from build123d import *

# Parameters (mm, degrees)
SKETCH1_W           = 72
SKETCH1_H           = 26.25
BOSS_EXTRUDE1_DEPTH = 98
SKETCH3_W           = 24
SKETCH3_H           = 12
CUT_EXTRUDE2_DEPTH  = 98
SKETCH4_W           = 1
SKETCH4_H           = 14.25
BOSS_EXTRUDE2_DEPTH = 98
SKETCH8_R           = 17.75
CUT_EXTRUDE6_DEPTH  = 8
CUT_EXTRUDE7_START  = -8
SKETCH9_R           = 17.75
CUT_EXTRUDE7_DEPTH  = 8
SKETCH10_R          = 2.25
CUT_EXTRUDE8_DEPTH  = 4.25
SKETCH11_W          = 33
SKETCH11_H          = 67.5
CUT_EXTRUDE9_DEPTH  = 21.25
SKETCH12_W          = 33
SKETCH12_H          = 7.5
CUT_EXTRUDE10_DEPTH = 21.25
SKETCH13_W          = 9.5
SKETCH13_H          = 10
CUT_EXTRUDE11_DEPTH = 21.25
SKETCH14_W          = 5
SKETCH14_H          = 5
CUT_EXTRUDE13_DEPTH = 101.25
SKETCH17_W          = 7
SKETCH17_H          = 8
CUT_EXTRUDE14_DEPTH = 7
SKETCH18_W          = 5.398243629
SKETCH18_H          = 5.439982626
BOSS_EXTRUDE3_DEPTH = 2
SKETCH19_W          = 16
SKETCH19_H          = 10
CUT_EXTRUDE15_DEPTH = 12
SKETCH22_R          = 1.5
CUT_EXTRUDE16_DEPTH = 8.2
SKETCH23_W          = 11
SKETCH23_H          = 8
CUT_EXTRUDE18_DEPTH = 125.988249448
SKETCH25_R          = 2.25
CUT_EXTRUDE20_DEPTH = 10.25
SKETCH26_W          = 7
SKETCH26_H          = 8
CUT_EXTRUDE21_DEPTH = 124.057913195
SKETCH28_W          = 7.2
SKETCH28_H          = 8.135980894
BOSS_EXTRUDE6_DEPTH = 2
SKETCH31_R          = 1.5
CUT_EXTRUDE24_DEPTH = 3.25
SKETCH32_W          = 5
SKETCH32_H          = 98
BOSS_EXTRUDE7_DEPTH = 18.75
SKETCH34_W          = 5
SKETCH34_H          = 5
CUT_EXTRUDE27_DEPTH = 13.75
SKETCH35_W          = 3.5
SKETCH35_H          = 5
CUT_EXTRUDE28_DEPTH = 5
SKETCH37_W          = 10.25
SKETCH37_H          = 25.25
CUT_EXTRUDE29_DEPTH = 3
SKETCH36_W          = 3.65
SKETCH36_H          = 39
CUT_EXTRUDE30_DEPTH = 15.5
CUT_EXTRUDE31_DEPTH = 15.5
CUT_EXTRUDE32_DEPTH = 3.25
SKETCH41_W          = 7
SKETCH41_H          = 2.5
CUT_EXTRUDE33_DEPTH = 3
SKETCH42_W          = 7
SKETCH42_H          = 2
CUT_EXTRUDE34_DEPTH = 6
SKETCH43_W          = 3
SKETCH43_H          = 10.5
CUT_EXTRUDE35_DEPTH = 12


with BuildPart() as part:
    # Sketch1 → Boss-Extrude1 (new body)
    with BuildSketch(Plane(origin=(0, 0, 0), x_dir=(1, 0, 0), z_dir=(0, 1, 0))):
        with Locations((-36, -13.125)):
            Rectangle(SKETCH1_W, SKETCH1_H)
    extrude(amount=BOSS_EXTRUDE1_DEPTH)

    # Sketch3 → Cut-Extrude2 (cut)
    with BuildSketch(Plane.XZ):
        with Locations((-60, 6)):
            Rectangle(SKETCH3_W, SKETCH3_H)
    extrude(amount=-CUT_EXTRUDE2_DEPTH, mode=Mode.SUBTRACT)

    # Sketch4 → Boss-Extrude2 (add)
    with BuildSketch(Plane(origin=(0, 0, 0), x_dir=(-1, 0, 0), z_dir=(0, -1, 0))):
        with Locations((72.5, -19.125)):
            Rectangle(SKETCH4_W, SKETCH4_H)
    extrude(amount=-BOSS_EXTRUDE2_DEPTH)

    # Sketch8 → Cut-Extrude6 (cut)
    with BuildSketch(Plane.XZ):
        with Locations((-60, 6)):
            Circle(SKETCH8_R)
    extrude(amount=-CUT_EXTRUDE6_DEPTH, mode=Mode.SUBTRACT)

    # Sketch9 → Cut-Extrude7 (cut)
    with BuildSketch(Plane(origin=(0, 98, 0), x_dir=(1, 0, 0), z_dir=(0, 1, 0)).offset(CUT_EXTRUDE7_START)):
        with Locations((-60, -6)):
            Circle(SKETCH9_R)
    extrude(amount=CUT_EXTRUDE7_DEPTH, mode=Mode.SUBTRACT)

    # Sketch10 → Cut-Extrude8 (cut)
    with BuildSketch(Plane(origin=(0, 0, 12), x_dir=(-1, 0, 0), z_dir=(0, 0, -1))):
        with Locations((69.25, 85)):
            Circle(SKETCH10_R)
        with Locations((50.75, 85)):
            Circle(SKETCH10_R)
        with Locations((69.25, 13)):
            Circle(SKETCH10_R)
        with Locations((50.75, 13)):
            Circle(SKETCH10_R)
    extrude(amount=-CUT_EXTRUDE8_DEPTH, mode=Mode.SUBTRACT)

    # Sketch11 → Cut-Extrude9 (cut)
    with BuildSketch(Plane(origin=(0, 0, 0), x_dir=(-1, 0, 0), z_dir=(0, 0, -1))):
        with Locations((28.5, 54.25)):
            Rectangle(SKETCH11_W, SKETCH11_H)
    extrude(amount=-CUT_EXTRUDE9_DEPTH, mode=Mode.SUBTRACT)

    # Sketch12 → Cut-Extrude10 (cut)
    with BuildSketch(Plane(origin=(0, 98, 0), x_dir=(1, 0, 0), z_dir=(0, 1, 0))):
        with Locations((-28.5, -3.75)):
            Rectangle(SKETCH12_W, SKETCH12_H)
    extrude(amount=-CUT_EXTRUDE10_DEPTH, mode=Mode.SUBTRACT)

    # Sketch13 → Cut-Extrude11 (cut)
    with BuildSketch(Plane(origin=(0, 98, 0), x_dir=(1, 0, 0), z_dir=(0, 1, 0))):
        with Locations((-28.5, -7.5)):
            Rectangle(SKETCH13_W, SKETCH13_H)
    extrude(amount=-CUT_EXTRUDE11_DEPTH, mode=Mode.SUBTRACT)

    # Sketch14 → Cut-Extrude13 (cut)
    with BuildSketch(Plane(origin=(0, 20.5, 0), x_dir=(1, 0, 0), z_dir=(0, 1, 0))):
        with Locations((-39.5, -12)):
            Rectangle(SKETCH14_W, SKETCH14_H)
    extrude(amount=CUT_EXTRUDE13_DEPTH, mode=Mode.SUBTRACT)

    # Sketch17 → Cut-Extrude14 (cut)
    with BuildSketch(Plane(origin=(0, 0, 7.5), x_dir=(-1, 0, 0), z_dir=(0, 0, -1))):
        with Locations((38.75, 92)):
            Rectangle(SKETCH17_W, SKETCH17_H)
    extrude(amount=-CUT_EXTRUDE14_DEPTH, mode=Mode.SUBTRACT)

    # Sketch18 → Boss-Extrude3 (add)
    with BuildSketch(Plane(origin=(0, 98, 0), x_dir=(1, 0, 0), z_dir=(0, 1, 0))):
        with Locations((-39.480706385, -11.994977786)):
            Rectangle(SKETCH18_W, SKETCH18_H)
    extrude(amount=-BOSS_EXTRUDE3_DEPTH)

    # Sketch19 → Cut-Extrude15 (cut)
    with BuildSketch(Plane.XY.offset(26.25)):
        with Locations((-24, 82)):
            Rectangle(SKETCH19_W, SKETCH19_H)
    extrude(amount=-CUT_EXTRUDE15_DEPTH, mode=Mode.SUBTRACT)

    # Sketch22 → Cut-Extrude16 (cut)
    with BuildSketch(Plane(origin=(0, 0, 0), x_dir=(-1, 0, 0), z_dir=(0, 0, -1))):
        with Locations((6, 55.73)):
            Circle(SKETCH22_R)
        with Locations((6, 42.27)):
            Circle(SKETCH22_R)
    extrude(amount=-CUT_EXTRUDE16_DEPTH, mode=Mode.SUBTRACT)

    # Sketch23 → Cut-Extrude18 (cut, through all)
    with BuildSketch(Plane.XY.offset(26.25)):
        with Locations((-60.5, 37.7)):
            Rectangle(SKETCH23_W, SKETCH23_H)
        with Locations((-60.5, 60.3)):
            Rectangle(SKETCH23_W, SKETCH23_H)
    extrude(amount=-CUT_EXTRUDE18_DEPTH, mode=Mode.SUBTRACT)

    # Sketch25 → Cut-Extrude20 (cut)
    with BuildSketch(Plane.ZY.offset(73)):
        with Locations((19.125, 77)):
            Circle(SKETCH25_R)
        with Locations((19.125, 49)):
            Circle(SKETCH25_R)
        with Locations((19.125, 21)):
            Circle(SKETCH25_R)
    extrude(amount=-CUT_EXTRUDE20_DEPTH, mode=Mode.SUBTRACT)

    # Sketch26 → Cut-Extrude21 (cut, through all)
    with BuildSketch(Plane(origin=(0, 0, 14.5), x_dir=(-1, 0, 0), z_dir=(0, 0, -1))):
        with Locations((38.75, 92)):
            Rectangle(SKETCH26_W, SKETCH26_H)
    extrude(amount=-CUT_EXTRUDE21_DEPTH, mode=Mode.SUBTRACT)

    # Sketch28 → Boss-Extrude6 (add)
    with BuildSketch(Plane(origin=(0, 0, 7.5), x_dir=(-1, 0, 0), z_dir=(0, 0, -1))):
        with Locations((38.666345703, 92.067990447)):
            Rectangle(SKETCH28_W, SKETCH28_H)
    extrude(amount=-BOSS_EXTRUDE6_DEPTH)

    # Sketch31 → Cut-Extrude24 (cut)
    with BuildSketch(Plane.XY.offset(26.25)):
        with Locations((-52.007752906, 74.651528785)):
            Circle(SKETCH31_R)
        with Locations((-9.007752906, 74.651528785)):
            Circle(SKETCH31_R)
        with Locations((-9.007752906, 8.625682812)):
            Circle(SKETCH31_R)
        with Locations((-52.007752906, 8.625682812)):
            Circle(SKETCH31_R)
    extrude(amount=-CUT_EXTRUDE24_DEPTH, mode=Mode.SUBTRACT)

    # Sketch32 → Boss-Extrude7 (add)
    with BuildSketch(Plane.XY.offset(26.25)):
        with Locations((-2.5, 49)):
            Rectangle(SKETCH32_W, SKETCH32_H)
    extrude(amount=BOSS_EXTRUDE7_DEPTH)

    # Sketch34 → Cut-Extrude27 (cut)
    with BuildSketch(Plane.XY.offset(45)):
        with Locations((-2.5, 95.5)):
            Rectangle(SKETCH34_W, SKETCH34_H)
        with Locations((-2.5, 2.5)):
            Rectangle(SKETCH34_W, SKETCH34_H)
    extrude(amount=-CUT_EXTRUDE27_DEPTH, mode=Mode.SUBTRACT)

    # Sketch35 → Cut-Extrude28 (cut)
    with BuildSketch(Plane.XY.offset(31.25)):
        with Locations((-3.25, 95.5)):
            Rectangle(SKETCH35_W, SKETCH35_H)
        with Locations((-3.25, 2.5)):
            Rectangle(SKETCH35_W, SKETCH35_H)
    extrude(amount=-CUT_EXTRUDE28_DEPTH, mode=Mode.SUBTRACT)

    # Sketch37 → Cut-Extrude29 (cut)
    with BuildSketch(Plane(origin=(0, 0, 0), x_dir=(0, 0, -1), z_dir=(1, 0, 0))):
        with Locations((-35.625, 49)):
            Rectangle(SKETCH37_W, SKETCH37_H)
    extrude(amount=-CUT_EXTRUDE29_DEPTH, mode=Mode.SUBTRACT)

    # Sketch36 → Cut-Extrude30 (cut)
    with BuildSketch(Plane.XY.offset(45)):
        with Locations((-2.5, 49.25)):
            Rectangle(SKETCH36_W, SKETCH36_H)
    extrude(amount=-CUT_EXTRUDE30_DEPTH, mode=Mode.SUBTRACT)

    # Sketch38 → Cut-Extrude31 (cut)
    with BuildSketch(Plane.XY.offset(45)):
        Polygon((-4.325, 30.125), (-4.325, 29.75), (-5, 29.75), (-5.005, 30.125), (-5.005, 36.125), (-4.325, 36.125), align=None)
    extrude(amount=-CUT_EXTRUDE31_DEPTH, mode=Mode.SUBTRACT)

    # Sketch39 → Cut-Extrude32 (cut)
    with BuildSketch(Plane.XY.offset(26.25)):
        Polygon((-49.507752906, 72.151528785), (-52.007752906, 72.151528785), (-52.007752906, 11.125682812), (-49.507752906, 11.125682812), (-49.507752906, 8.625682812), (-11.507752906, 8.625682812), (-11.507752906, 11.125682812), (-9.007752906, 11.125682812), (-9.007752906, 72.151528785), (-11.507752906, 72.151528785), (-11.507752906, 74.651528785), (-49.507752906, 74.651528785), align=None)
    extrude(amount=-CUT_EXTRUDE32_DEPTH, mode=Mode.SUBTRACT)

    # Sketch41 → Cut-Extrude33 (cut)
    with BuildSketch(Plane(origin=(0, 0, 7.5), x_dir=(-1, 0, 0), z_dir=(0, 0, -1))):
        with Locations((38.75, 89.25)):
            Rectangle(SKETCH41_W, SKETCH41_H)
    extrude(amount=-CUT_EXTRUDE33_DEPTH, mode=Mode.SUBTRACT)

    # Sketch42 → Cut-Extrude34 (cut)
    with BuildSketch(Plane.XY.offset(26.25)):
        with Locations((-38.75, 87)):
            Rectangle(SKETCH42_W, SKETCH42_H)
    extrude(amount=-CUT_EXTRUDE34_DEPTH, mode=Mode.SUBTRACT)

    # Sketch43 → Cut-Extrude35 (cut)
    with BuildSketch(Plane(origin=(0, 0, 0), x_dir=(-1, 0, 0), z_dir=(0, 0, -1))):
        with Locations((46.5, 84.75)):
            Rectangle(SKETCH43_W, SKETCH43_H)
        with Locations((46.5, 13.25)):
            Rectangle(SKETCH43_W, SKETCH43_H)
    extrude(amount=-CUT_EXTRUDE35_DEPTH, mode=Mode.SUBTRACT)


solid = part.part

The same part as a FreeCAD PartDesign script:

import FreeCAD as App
import Part
import Sketcher

V = App.Vector
Q = App.Units.Quantity


def add_polygon(sketch, points):
    """Adds a closed chain of lines whose ends are joined by coincident constraints."""
    first, n = sketch.GeometryCount, len(points)
    for a, b in zip(points, points[1:] + points[:1]):
        sketch.addGeometry(Part.LineSegment(App.Vector(*a, 0), App.Vector(*b, 0)), False)
    for i in range(n):
        sketch.addConstraint(Sketcher.Constraint("Coincident", first + i, 2, first + (i + 1) % n, 1))

doc = App.newDocument("Part")
body = doc.addObject("PartDesign::Body", "Body")

# Sketch on XZ plane
sketch1 = body.newObject("Sketcher::SketchObject", "Sketch")
sketch1.AttachmentSupport = (doc.getObject("XZ_Plane"), [""])
sketch1.MapMode = "FlatFace"
add_polygon(sketch1, [(-72, 0), (-72, 26.25), (0, 26.25), (0, 0)])  # lines 0-3
sketch1.addConstraint(Sketcher.Constraint("Vertical", 0))
sketch1.addConstraint(Sketcher.Constraint("Horizontal", 1))
sketch1.addConstraint(Sketcher.Constraint("Vertical", 2))
sketch1.addConstraint(Sketcher.Constraint("Horizontal", 3))
sketch1.addConstraint(Sketcher.Constraint("Coincident", 2, 2, -1, 1))
sketch1.addConstraint(Sketcher.Constraint("DistanceX", 1, 1, 1, 2, Q("72 mm")))
sketch1.addConstraint(Sketcher.Constraint("DistanceY", 0, 1, 0, 2, Q("26.25 mm")))
pad1 = body.newObject("PartDesign::Pad", "Pad")
pad1.Profile = sketch1
pad1.Length = 98
pad1.Reversed = True

# Sketch on XZ plane
sketch2 = body.newObject("Sketcher::SketchObject", "Sketch001")
sketch2.AttachmentSupport = (doc.getObject("XZ_Plane"), [""])
sketch2.MapMode = "FlatFace"
add_polygon(sketch2, [(-72, 12), (-72, 0), (-48, 0), (-48, 12)])  # lines 0-3
sketch2.addConstraint(Sketcher.Constraint("Vertical", 0))
sketch2.addConstraint(Sketcher.Constraint("Horizontal", 1))
sketch2.addConstraint(Sketcher.Constraint("Vertical", 2))
sketch2.addConstraint(Sketcher.Constraint("Horizontal", 3))
sketch2.addConstraint(Sketcher.Constraint("PointOnObject", 0, 2, -1))
sketch2.addConstraint(Sketcher.Constraint("DistanceX", 1, 1, 1, 2, Q("24 mm")))
sketch2.addConstraint(Sketcher.Constraint("DistanceY", 0, 2, 0, 1, Q("12 mm")))
sketch2.addConstraint(Sketcher.Constraint("DistanceX", 0, 2, -1, 1, Q("72 mm")))
pocket1 = body.newObject("PartDesign::Pocket", "Pocket")
pocket1.Profile = sketch2
pocket1.Length = 98

# Sketch on XZ plane
sketch3 = body.newObject("Sketcher::SketchObject", "Sketch002")
sketch3.AttachmentSupport = (doc.getObject("XZ_Plane"), [""])
sketch3.MapMode = "FlatFace"
add_polygon(sketch3, [(-72, 12), (-72, 26.25), (-73, 26.25), (-73, 12)])  # lines 0-3
sketch3.addConstraint(Sketcher.Constraint("Vertical", 0))
sketch3.addConstraint(Sketcher.Constraint("Horizontal", 1))
sketch3.addConstraint(Sketcher.Constraint("Vertical", 2))
sketch3.addConstraint(Sketcher.Constraint("Horizontal", 3))
sketch3.addConstraint(Sketcher.Constraint("DistanceX", 1, 2, 1, 1, Q("1 mm")))
sketch3.addConstraint(Sketcher.Constraint("DistanceX", 0, 2, -1, 1, Q("72 mm")))
sketch3.addConstraint(Sketcher.Constraint("DistanceY", -1, 1, 2, 2, Q("12 mm")))
sketch3.addConstraint(Sketcher.Constraint("DistanceY", 0, 1, 0, 2, Q("14.25 mm")))
pad2 = body.newObject("PartDesign::Pad", "Pad001")
pad2.Profile = sketch3
pad2.Length = 98
pad2.Reversed = True

# Sketch on XZ plane
sketch4 = body.newObject("Sketcher::SketchObject", "Sketch003")
sketch4.AttachmentSupport = (doc.getObject("XZ_Plane"), [""])
sketch4.MapMode = "FlatFace"
sketch4.addGeometry(Part.Circle(V(-60, 6, 0), V(0, 0, 1), 17.75), False)
sketch4.addConstraint(Sketcher.Constraint("Diameter", 0, Q("35.5 mm")))
sketch4.addConstraint(Sketcher.Constraint("DistanceX", 0, 3, -1, 1, Q("60 mm")))
sketch4.addConstraint(Sketcher.Constraint("DistanceY", -1, 1, 0, 3, Q("6 mm")))
pocket2 = body.newObject("PartDesign::Pocket", "Pocket001")
pocket2.Profile = sketch4
pocket2.Length = 8

# Sketch on XZ plane
sketch5 = body.newObject("Sketcher::SketchObject", "Sketch004")
sketch5.AttachmentSupport = (doc.getObject("XZ_Plane"), [""])
sketch5.MapMode = "FlatFace"
sketch5.AttachmentOffset = App.Placement(V(0, 0, -90), App.Rotation())
sketch5.addGeometry(Part.Circle(V(-60, 6, 0), V(0, 0, 1), 17.75), False)
sketch5.addConstraint(Sketcher.Constraint("Diameter", 0, Q("35.5 mm")))
sketch5.addConstraint(Sketcher.Constraint("DistanceX", 0, 3, -1, 1, Q("60 mm")))
sketch5.addConstraint(Sketcher.Constraint("DistanceY", -1, 1, 0, 3, Q("6 mm")))
pocket3 = body.newObject("PartDesign::Pocket", "Pocket002")
pocket3.Profile = sketch5
pocket3.Length = 8

# Sketch on XY plane
sketch6 = body.newObject("Sketcher::SketchObject", "Sketch005")
sketch6.AttachmentSupport = (doc.getObject("XY_Plane"), [""])
sketch6.MapMode = "FlatFace"
sketch6.AttachmentOffset = App.Placement(V(0, 0, 12), App.Rotation())
sketch6.addGeometry(Part.Circle(V(-69.25, 85, 0), V(0, 0, 1), 2.25), False)
sketch6.addGeometry(Part.Circle(V(-50.75, 85, 0), V(0, 0, 1), 2.25), False)
sketch6.addGeometry(Part.Circle(V(-69.25, 13, 0), V(0, 0, 1), 2.25), False)
sketch6.addGeometry(Part.Circle(V(-50.75, 13, 0), V(0, 0, 1), 2.25), False)
sketch6.addConstraint(Sketcher.Constraint("Equal", 0, 1))
sketch6.addConstraint(Sketcher.Constraint("Equal", 1, 2))
sketch6.addConstraint(Sketcher.Constraint("Equal", 2, 3))
sketch6.addConstraint(Sketcher.Constraint("Horizontal", 0, 3, 1, 3))
sketch6.addConstraint(Sketcher.Constraint("Horizontal", 2, 3, 3, 3))
sketch6.addConstraint(Sketcher.Constraint("Vertical", 0, 3, 2, 3))
sketch6.addConstraint(Sketcher.Constraint("Vertical", 1, 3, 3, 3))
sketch6.addConstraint(Sketcher.Constraint("Diameter", 0, Q("4.5 mm")))
sketch6.addConstraint(Sketcher.Constraint("DistanceY", -1, 1, 0, 3, Q("85 mm")))
sketch6.addConstraint(Sketcher.Constraint("DistanceY", -1, 1, 2, 3, Q("13 mm")))
sketch6.addConstraint(Sketcher.Constraint("DistanceX", 0, 3, 1, 3, Q("18.5 mm")))
sketch6.addConstraint(Sketcher.Constraint("DistanceX", 0, 3, -1, 1, Q("69.25 mm")))
pocket4 = body.newObject("PartDesign::Pocket", "Pocket003")
pocket4.Profile = sketch6
pocket4.Length = 4.25
pocket4.Reversed = True

# Sketch on XY plane
sketch7 = body.newObject("Sketcher::SketchObject", "Sketch006")
sketch7.AttachmentSupport = (doc.getObject("XY_Plane"), [""])
sketch7.MapMode = "FlatFace"
add_polygon(sketch7, [(-12, 88), (-12, 20.5), (-45, 20.5), (-45, 88)])  # lines 0-3
sketch7.addConstraint(Sketcher.Constraint("Vertical", 0))
sketch7.addConstraint(Sketcher.Constraint("Horizontal", 1))
sketch7.addConstraint(Sketcher.Constraint("Vertical", 2))
sketch7.addConstraint(Sketcher.Constraint("Horizontal", 3))
sketch7.addConstraint(Sketcher.Constraint("DistanceX", 1, 2, 1, 1, Q("33 mm")))
sketch7.addConstraint(Sketcher.Constraint("DistanceY", 0, 2, 0, 1, Q("67.5 mm")))
sketch7.addConstraint(Sketcher.Constraint("DistanceX", 0, 2, -1, 1, Q("12 mm")))
sketch7.addConstraint(Sketcher.Constraint("DistanceY", -1, 1, 2, 2, Q("88 mm")))
pocket5 = body.newObject("PartDesign::Pocket", "Pocket004")
pocket5.Profile = sketch7
pocket5.Length = 21.25
pocket5.Reversed = True

# Sketch on XZ plane
sketch8 = body.newObject("Sketcher::SketchObject", "Sketch007")
sketch8.AttachmentSupport = (doc.getObject("XZ_Plane"), [""])
sketch8.MapMode = "FlatFace"
sketch8.AttachmentOffset = App.Placement(V(0, 0, -98), App.Rotation())
add_polygon(sketch8, [(-45, 0), (-45, 7.5), (-12, 7.5), (-12, 0)])  # lines 0-3
sketch8.addConstraint(Sketcher.Constraint("Vertical", 0))
sketch8.addConstraint(Sketcher.Constraint("Horizontal", 1))
sketch8.addConstraint(Sketcher.Constraint("Vertical", 2))
sketch8.addConstraint(Sketcher.Constraint("Horizontal", 3))
sketch8.addConstraint(Sketcher.Constraint("PointOnObject", 2, 2, -1))
sketch8.addConstraint(Sketcher.Constraint("DistanceX", 1, 1, 1, 2, Q("33 mm")))
sketch8.addConstraint(Sketcher.Constraint("DistanceY", 0, 1, 0, 2, Q("7.5 mm")))
sketch8.addConstraint(Sketcher.Constraint("DistanceX", 0, 2, -1, 1, Q("45 mm")))
pocket6 = body.newObject("PartDesign::Pocket", "Pocket005")
pocket6.Profile = sketch8
pocket6.Length = 21.25
pocket6.Reversed = True

# Sketch on XZ plane
sketch9 = body.newObject("Sketcher::SketchObject", "Sketch008")
sketch9.AttachmentSupport = (doc.getObject("XZ_Plane"), [""])
sketch9.MapMode = "FlatFace"
sketch9.AttachmentOffset = App.Placement(V(0, 0, -98), App.Rotation())
add_polygon(sketch9, [(-33.25, 2.5), (-33.25, 12.5), (-23.75, 12.5), (-23.75, 2.5)])  # lines 0-3
sketch9.addConstraint(Sketcher.Constraint("Vertical", 0))
sketch9.addConstraint(Sketcher.Constraint("Horizontal", 1))
sketch9.addConstraint(Sketcher.Constraint("Vertical", 2))
sketch9.addConstraint(Sketcher.Constraint("Horizontal", 3))
sketch9.addConstraint(Sketcher.Constraint("DistanceY", 0, 1, 0, 2, Q("10 mm")))
sketch9.addConstraint(Sketcher.Constraint("DistanceX", 1, 1, 1, 2, Q("9.5 mm")))
sketch9.addConstraint(Sketcher.Constraint("DistanceY", -1, 1, 0, 2, Q("12.5 mm")))
sketch9.addConstraint(Sketcher.Constraint("DistanceX", 0, 2, -1, 1, Q("33.25 mm")))
pocket7 = body.newObject("PartDesign::Pocket", "Pocket006")
pocket7.Profile = sketch9
pocket7.Length = 21.25
pocket7.Reversed = True

# Sketch on XZ plane
sketch10 = body.newObject("Sketcher::SketchObject", "Sketch009")
sketch10.AttachmentSupport = (doc.getObject("XZ_Plane"), [""])
sketch10.MapMode = "FlatFace"
sketch10.AttachmentOffset = App.Placement(V(0, 0, -20.5), App.Rotation())
add_polygon(sketch10, [(-42, 9.5), (-42, 14.5), (-37, 14.5), (-37, 9.5)])  # lines 0-3
sketch10.addConstraint(Sketcher.Constraint("Vertical", 0))
sketch10.addConstraint(Sketcher.Constraint("Horizontal", 1))
sketch10.addConstraint(Sketcher.Constraint("Vertical", 2))
sketch10.addConstraint(Sketcher.Constraint("Horizontal", 3))
sketch10.addConstraint(Sketcher.Constraint("Equal", 3, 0))
sketch10.addConstraint(Sketcher.Constraint("DistanceX", 1, 1, 1, 2, Q("5 mm")))
sketch10.addConstraint(Sketcher.Constraint("DistanceX", 0, 2, -1, 1, Q("42 mm")))
sketch10.addConstraint(Sketcher.Constraint("DistanceY", -1, 1, 0, 2, Q("14.5 mm")))
pocket8 = body.newObject("PartDesign::Pocket", "Pocket007")
pocket8.Profile = sketch10
pocket8.Length = 101.25

# Sketch on XY plane
sketch11 = body.newObject("Sketcher::SketchObject", "Sketch010")
sketch11.AttachmentSupport = (doc.getObject("XY_Plane"), [""])
sketch11.MapMode = "FlatFace"
sketch11.AttachmentOffset = App.Placement(V(0, 0, 7.5), App.Rotation())
add_polygon(sketch11, [(-35.25, 96), (-35.25, 88), (-42.25, 88), (-42.25, 96)])  # lines 0-3
sketch11.addConstraint(Sketcher.Constraint("Vertical", 0))
sketch11.addConstraint(Sketcher.Constraint("Horizontal", 1))
sketch11.addConstraint(Sketcher.Constraint("Vertical", 2))
sketch11.addConstraint(Sketcher.Constraint("Horizontal", 3))
sketch11.addConstraint(Sketcher.Constraint("DistanceX", 1, 2, 1, 1, Q("7 mm")))
sketch11.addConstraint(Sketcher.Constraint("DistanceY", 0, 2, 0, 1, Q("8 mm")))
sketch11.addConstraint(Sketcher.Constraint("DistanceY", -1, 1, 0, 2, Q("88 mm")))
sketch11.addConstraint(Sketcher.Constraint("DistanceX", 0, 2, -1, 1, Q("35.25 mm")))
pocket9 = body.newObject("PartDesign::Pocket", "Pocket008")
pocket9.Profile = sketch11
pocket9.Length = 7
pocket9.Reversed = True

# Sketch on XZ plane
sketch12 = body.newObject("Sketcher::SketchObject", "Sketch011")
sketch12.AttachmentSupport = (doc.getObject("XZ_Plane"), [""])
sketch12.MapMode = "FlatFace"
sketch12.AttachmentOffset = App.Placement(V(0, 0, -98), App.Rotation())
add_polygon(sketch12, [(-42.179828, 9.274986), (-42.179828, 14.714969), (-36.781585, 14.714969), (-36.781585, 9.274986)])  # lines 0-3
sketch12.addConstraint(Sketcher.Constraint("Vertical", 0))
sketch12.addConstraint(Sketcher.Constraint("Horizontal", 1))
sketch12.addConstraint(Sketcher.Constraint("Vertical", 2))
sketch12.addConstraint(Sketcher.Constraint("Horizontal", 3))
sketch12.addConstraint(Sketcher.Constraint("DistanceX", 1, 1, 1, 2, Q("5.398244 mm")))
sketch12.addConstraint(Sketcher.Constraint("DistanceY", 0, 1, 0, 2, Q("5.439983 mm")))
sketch12.addConstraint(Sketcher.Constraint("DistanceX", 0, 2, -1, 1, Q("42.179828 mm")))
sketch12.addConstraint(Sketcher.Constraint("DistanceY", -1, 1, 0, 2, Q("14.714969 mm")))
pad3 = body.newObject("PartDesign::Pad", "Pad002")
pad3.Profile = sketch12
pad3.Length = 2

# Sketch on XY plane
sketch13 = body.newObject("Sketcher::SketchObject", "Sketch012")
sketch13.AttachmentSupport = (doc.getObject("XY_Plane"), [""])
sketch13.MapMode = "FlatFace"
sketch13.AttachmentOffset = App.Placement(V(0, 0, 26.25), App.Rotation())
add_polygon(sketch13, [(-32, 87), (-32, 77), (-16, 77), (-16, 87)])  # lines 0-3
sketch13.addConstraint(Sketcher.Constraint("Vertical", 0))
sketch13.addConstraint(Sketcher.Constraint("Horizontal", 1))
sketch13.addConstraint(Sketcher.Constraint("Vertical", 2))
sketch13.addConstraint(Sketcher.Constraint("Horizontal", 3))
sketch13.addConstraint(Sketcher.Constraint("DistanceX", 1, 1, 1, 2, Q("16 mm")))
sketch13.addConstraint(Sketcher.Constraint("DistanceY", 0, 2, 0, 1, Q("10 mm")))
sketch13.addConstraint(Sketcher.Constraint("DistanceX", 0, 2, -1, 1, Q("32 mm")))
sketch13.addConstraint(Sketcher.Constraint("DistanceY", -1, 1, 0, 2, Q("77 mm")))
pocket10 = body.newObject("PartDesign::Pocket", "Pocket009")
pocket10.Profile = sketch13
pocket10.Length = 12

# Sketch on XY plane
sketch14 = body.newObject("Sketcher::SketchObject", "Sketch013")
sketch14.AttachmentSupport = (doc.getObject("XY_Plane"), [""])
sketch14.MapMode = "FlatFace"
sketch14.addGeometry(Part.Circle(V(-6, 55.73, 0), V(0, 0, 1), 1.5), False)
sketch14.addGeometry(Part.Circle(V(-6, 42.27, 0), V(0, 0, 1), 1.5), False)
sketch14.addConstraint(Sketcher.Constraint("Equal", 0, 1))
sketch14.addConstraint(Sketcher.Constraint("Vertical", 0, 3, 1, 3))
sketch14.addConstraint(Sketcher.Constraint("Diameter", 0, Q("3 mm")))
sketch14.addConstraint(Sketcher.Constraint("DistanceX", 0, 3, -1, 1, Q("6 mm")))
sketch14.addConstraint(Sketcher.Constraint("DistanceY", -1, 1, 0, 3, Q("55.73 mm")))
sketch14.addConstraint(Sketcher.Constraint("DistanceY", -1, 1, 1, 3, Q("42.27 mm")))
pocket11 = body.newObject("PartDesign::Pocket", "Pocket010")
pocket11.Profile = sketch14
pocket11.Length = 8.2
pocket11.Reversed = True

# Sketch on XY plane
sketch15 = body.newObject("Sketcher::SketchObject", "Sketch014")
sketch15.AttachmentSupport = (doc.getObject("XY_Plane"), [""])
sketch15.MapMode = "FlatFace"
sketch15.AttachmentOffset = App.Placement(V(0, 0, 26.25), App.Rotation())
add_polygon(sketch15, [(-66, 41.7), (-66, 33.7), (-55, 33.7), (-55, 41.7)])  # lines 0-3
add_polygon(sketch15, [(-66, 64.3), (-66, 56.3), (-55, 56.3), (-55, 64.3)])  # lines 4-7
sketch15.addConstraint(Sketcher.Constraint("Vertical", 0))
sketch15.addConstraint(Sketcher.Constraint("Horizontal", 1))
sketch15.addConstraint(Sketcher.Constraint("Vertical", 2))
sketch15.addConstraint(Sketcher.Constraint("Horizontal", 3))
sketch15.addConstraint(Sketcher.Constraint("Vertical", 4))
sketch15.addConstraint(Sketcher.Constraint("Horizontal", 5))
sketch15.addConstraint(Sketcher.Constraint("Vertical", 6))
sketch15.addConstraint(Sketcher.Constraint("Horizontal", 7))
sketch15.addConstraint(Sketcher.Constraint("Vertical", 3, 2, 4, 2))
sketch15.addConstraint(Sketcher.Constraint("Vertical", 2, 2, 5, 2))
sketch15.addConstraint(Sketcher.Constraint("Equal", 2, 4))
sketch15.addConstraint(Sketcher.Constraint("DistanceX", 1, 1, 1, 2, Q("11 mm")))
sketch15.addConstraint(Sketcher.Constraint("DistanceY", 0, 2, 0, 1, Q("8 mm")))
sketch15.addConstraint(Sketcher.Constraint("DistanceX", 0, 2, -1, 1, Q("66 mm")))
sketch15.addConstraint(Sketcher.Constraint("DistanceY", -1, 1, 0, 2, Q("33.7 mm")))
sketch15.addConstraint(Sketcher.Constraint("DistanceY", -1, 1, 4, 2, Q("56.3 mm")))
pocket12 = body.newObject("PartDesign::Pocket", "Pocket011")
pocket12.Profile = sketch15
pocket12.Type = "ThroughAll"

# Sketch on YZ plane
sketch16 = body.newObject("Sketcher::SketchObject", "Sketch015")
sketch16.AttachmentSupport = (doc.getObject("YZ_Plane"), [""])
sketch16.MapMode = "FlatFace"
sketch16.AttachmentOffset = App.Placement(V(0, 0, -73), App.Rotation())
sketch16.addGeometry(Part.Circle(V(77, 19.125, 0), V(0, 0, 1), 2.25), False)
sketch16.addGeometry(Part.Circle(V(49, 19.125, 0), V(0, 0, 1), 2.25), False)
sketch16.addGeometry(Part.Circle(V(21, 19.125, 0), V(0, 0, 1), 2.25), False)
sketch16.addConstraint(Sketcher.Constraint("Equal", 0, 1))
sketch16.addConstraint(Sketcher.Constraint("Equal", 1, 2))
sketch16.addConstraint(Sketcher.Constraint("Horizontal", 0, 3, 1, 3))
sketch16.addConstraint(Sketcher.Constraint("Horizontal", 1, 3, 2, 3))
sketch16.addConstraint(Sketcher.Constraint("Diameter", 0, Q("4.5 mm")))
sketch16.addConstraint(Sketcher.Constraint("DistanceX", -1, 1, 0, 3, Q("77 mm")))
sketch16.addConstraint(Sketcher.Constraint("DistanceX", -1, 1, 1, 3, Q("49 mm")))
sketch16.addConstraint(Sketcher.Constraint("DistanceX", -1, 1, 2, 3, Q("21 mm")))
sketch16.addConstraint(Sketcher.Constraint("DistanceY", -1, 1, 0, 3, Q("19.125 mm")))
pocket13 = body.newObject("PartDesign::Pocket", "Pocket012")
pocket13.Profile = sketch16
pocket13.Length = 10.25
pocket13.Reversed = True

# Sketch on XY plane
sketch17 = body.newObject("Sketcher::SketchObject", "Sketch016")
sketch17.AttachmentSupport = (doc.getObject("XY_Plane"), [""])
sketch17.MapMode = "FlatFace"
sketch17.AttachmentOffset = App.Placement(V(0, 0, 14.5), App.Rotation())
add_polygon(sketch17, [(-35.25, 96), (-35.25, 88), (-42.25, 88), (-42.25, 96)])  # lines 0-3
sketch17.addConstraint(Sketcher.Constraint("Vertical", 0))
sketch17.addConstraint(Sketcher.Constraint("Horizontal", 1))
sketch17.addConstraint(Sketcher.Constraint("Vertical", 2))
sketch17.addConstraint(Sketcher.Constraint("Horizontal", 3))
sketch17.addConstraint(Sketcher.Constraint("DistanceX", 1, 2, 1, 1, Q("7 mm")))
sketch17.addConstraint(Sketcher.Constraint("DistanceY", 0, 2, 0, 1, Q("8 mm")))
sketch17.addConstraint(Sketcher.Constraint("DistanceY", -1, 1, 0, 2, Q("88 mm")))
sketch17.addConstraint(Sketcher.Constraint("DistanceX", 0, 2, -1, 1, Q("35.25 mm")))
pocket14 = body.newObject("PartDesign::Pocket", "Pocket013")
pocket14.Profile = sketch17
pocket14.Type = "ThroughAll"
pocket14.Reversed = True

# Sketch on XY plane
sketch18 = body.newObject("Sketcher::SketchObject", "Sketch017")
sketch18.AttachmentSupport = (doc.getObject("XY_Plane"), [""])
sketch18.MapMode = "FlatFace"
sketch18.AttachmentOffset = App.Placement(V(0, 0, 7.5), App.Rotation())
add_polygon(sketch18, [(-35.066346, 96.135981), (-35.066346, 88), (-42.266346, 88), (-42.266346, 96.135981)])  # lines 0-3
sketch18.addConstraint(Sketcher.Constraint("Vertical", 0))
sketch18.addConstraint(Sketcher.Constraint("Horizontal", 1))
sketch18.addConstraint(Sketcher.Constraint("Vertical", 2))
sketch18.addConstraint(Sketcher.Constraint("Horizontal", 3))
sketch18.addConstraint(Sketcher.Constraint("DistanceX", 1, 2, 1, 1, Q("7.2 mm")))
sketch18.addConstraint(Sketcher.Constraint("DistanceY", -1, 1, 0, 2, Q("88 mm")))
sketch18.addConstraint(Sketcher.Constraint("DistanceY", 0, 2, 0, 1, Q("8.135981 mm")))
sketch18.addConstraint(Sketcher.Constraint("DistanceX", 0, 2, -1, 1, Q("35.066346 mm")))
pad4 = body.newObject("PartDesign::Pad", "Pad003")
pad4.Profile = sketch18
pad4.Length = 2

# Sketch on XY plane
sketch19 = body.newObject("Sketcher::SketchObject", "Sketch018")
sketch19.AttachmentSupport = (doc.getObject("XY_Plane"), [""])
sketch19.MapMode = "FlatFace"
sketch19.AttachmentOffset = App.Placement(V(0, 0, 26.25), App.Rotation())
sketch19.addGeometry(Part.Circle(V(-52.007753, 74.651529, 0), V(0, 0, 1), 1.5), False)
sketch19.addGeometry(Part.Circle(V(-9.007753, 74.651529, 0), V(0, 0, 1), 1.5), False)
sketch19.addGeometry(Part.Circle(V(-9.007753, 8.625683, 0), V(0, 0, 1), 1.5), False)
sketch19.addGeometry(Part.Circle(V(-52.007753, 8.625683, 0), V(0, 0, 1), 1.5), False)
sketch19.addConstraint(Sketcher.Constraint("Equal", 0, 1))
sketch19.addConstraint(Sketcher.Constraint("Equal", 1, 2))
sketch19.addConstraint(Sketcher.Constraint("Equal", 2, 3))
sketch19.addConstraint(Sketcher.Constraint("Horizontal", 0, 3, 1, 3))
sketch19.addConstraint(Sketcher.Constraint("Horizontal", 2, 3, 3, 3))
sketch19.addConstraint(Sketcher.Constraint("Vertical", 1, 3, 2, 3))
sketch19.addConstraint(Sketcher.Constraint("Vertical", 0, 3, 3, 3))
sketch19.addConstraint(Sketcher.Constraint("Diameter", 0, Q("3 mm")))
sketch19.addConstraint(Sketcher.Constraint("DistanceX", 0, 3, 1, 3, Q("43 mm")))
sketch19.addConstraint(Sketcher.Constraint("DistanceY", -1, 1, 0, 3, Q("74.651529 mm")))
sketch19.addConstraint(Sketcher.Constraint("DistanceX", 0, 3, -1, 1, Q("52.007753 mm")))
sketch19.addConstraint(Sketcher.Constraint("DistanceY", -1, 1, 2, 3, Q("8.625683 mm")))
pocket15 = body.newObject("PartDesign::Pocket", "Pocket014")
pocket15.Profile = sketch19
pocket15.Length = 3.25

# Sketch on XY plane
sketch20 = body.newObject("Sketcher::SketchObject", "Sketch019")
sketch20.AttachmentSupport = (doc.getObject("XY_Plane"), [""])
sketch20.MapMode = "FlatFace"
sketch20.AttachmentOffset = App.Placement(V(0, 0, 26.25), App.Rotation())
add_polygon(sketch20, [(-5, 98), (-5, 0), (0, 0), (0, 98)])  # lines 0-3
sketch20.addConstraint(Sketcher.Constraint("Vertical", 0))
sketch20.addConstraint(Sketcher.Constraint("Horizontal", 1))
sketch20.addConstraint(Sketcher.Constraint("Vertical", 2))
sketch20.addConstraint(Sketcher.Constraint("Horizontal", 3))
sketch20.addConstraint(Sketcher.Constraint("Coincident", 1, 2, -1, 1))
sketch20.addConstraint(Sketcher.Constraint("DistanceX", 1, 1, 1, 2, Q("5 mm")))
sketch20.addConstraint(Sketcher.Constraint("DistanceY", 0, 2, 0, 1, Q("98 mm")))
pad5 = body.newObject("PartDesign::Pad", "Pad004")
pad5.Profile = sketch20
pad5.Length = 18.75

# Sketch on XY plane
sketch21 = body.newObject("Sketcher::SketchObject", "Sketch020")
sketch21.AttachmentSupport = (doc.getObject("XY_Plane"), [""])
sketch21.MapMode = "FlatFace"
sketch21.AttachmentOffset = App.Placement(V(0, 0, 45), App.Rotation())
add_polygon(sketch21, [(-5, 98), (-5, 93), (0, 93), (0, 98)])  # lines 0-3
add_polygon(sketch21, [(-5, 5), (-5, 0), (0, 0), (0, 5)])  # lines 4-7
sketch21.addConstraint(Sketcher.Constraint("Vertical", 0))
sketch21.addConstraint(Sketcher.Constraint("Horizontal", 1))
sketch21.addConstraint(Sketcher.Constraint("Vertical", 2))
sketch21.addConstraint(Sketcher.Constraint("Horizontal", 3))
sketch21.addConstraint(Sketcher.Constraint("Vertical", 4))
sketch21.addConstraint(Sketcher.Constraint("Horizontal", 5))
sketch21.addConstraint(Sketcher.Constraint("Vertical", 6))
sketch21.addConstraint(Sketcher.Constraint("Horizontal", 7))
sketch21.addConstraint(Sketcher.Constraint("Coincident", 5, 2, -1, 1))
sketch21.addConstraint(Sketcher.Constraint("PointOnObject", 1, 2, -2))
sketch21.addConstraint(Sketcher.Constraint("Vertical", 3, 2, 4, 2))
sketch21.addConstraint(Sketcher.Constraint("Equal", 7, 0))
sketch21.addConstraint(Sketcher.Constraint("Equal", 2, 4))
sketch21.addConstraint(Sketcher.Constraint("DistanceX", 1, 1, 1, 2, Q("5 mm")))
sketch21.addConstraint(Sketcher.Constraint("DistanceY", -1, 1, 0, 2, Q("93 mm")))
pocket16 = body.newObject("PartDesign::Pocket", "Pocket015")
pocket16.Profile = sketch21
pocket16.Length = 13.75

# Sketch on XY plane
sketch22 = body.newObject("Sketcher::SketchObject", "Sketch021")
sketch22.AttachmentSupport = (doc.getObject("XY_Plane"), [""])
sketch22.MapMode = "FlatFace"
sketch22.AttachmentOffset = App.Placement(V(0, 0, 31.25), App.Rotation())
add_polygon(sketch22, [(-5, 98), (-5, 93), (-1.5, 93), (-1.5, 98)])  # lines 0-3
add_polygon(sketch22, [(-5, 5), (-5, 0), (-1.5, 0), (-1.5, 5)])  # lines 4-7
sketch22.addConstraint(Sketcher.Constraint("Vertical", 0))
sketch22.addConstraint(Sketcher.Constraint("Horizontal", 1))
sketch22.addConstraint(Sketcher.Constraint("Vertical", 2))
sketch22.addConstraint(Sketcher.Constraint("Horizontal", 3))
sketch22.addConstraint(Sketcher.Constraint("Vertical", 4))
sketch22.addConstraint(Sketcher.Constraint("Horizontal", 5))
sketch22.addConstraint(Sketcher.Constraint("Vertical", 6))
sketch22.addConstraint(Sketcher.Constraint("Horizontal", 7))
sketch22.addConstraint(Sketcher.Constraint("PointOnObject", 4, 2, -1))
sketch22.addConstraint(Sketcher.Constraint("Vertical", 3, 2, 4, 2))
sketch22.addConstraint(Sketcher.Constraint("Vertical", 2, 2, 5, 2))
sketch22.addConstraint(Sketcher.Constraint("Equal", 2, 4))
sketch22.addConstraint(Sketcher.Constraint("DistanceY", 0, 2, 0, 1, Q("5 mm")))
sketch22.addConstraint(Sketcher.Constraint("DistanceX", 1, 1, 1, 2, Q("3.5 mm")))
sketch22.addConstraint(Sketcher.Constraint("DistanceX", 0, 2, -1, 1, Q("5 mm")))
sketch22.addConstraint(Sketcher.Constraint("DistanceY", -1, 1, 0, 2, Q("93 mm")))
pocket17 = body.newObject("PartDesign::Pocket", "Pocket016")
pocket17.Profile = sketch22
pocket17.Length = 5

# Sketch on YZ plane
sketch23 = body.newObject("Sketcher::SketchObject", "Sketch022")
sketch23.AttachmentSupport = (doc.getObject("YZ_Plane"), [""])
sketch23.MapMode = "FlatFace"
add_polygon(sketch23, [(61.625, 40.75), (36.375, 40.75), (36.375, 30.5), (61.625, 30.5)])  # lines 0-3
sketch23.addConstraint(Sketcher.Constraint("Horizontal", 0))
sketch23.addConstraint(Sketcher.Constraint("Vertical", 1))
sketch23.addConstraint(Sketcher.Constraint("Horizontal", 2))
sketch23.addConstraint(Sketcher.Constraint("Vertical", 3))
sketch23.addConstraint(Sketcher.Constraint("DistanceX", 0, 2, 0, 1, Q("25.25 mm")))
sketch23.addConstraint(Sketcher.Constraint("DistanceY", 1, 2, 1, 1, Q("10.25 mm")))
sketch23.addConstraint(Sketcher.Constraint("DistanceY", -1, 1, 1, 2, Q("30.5 mm")))
sketch23.addConstraint(Sketcher.Constraint("DistanceX", -1, 1, 0, 2, Q("36.375 mm")))
pocket18 = body.newObject("PartDesign::Pocket", "Pocket017")
pocket18.Profile = sketch23
pocket18.Length = 3

# Sketch on XY plane
sketch24 = body.newObject("Sketcher::SketchObject", "Sketch023")
sketch24.AttachmentSupport = (doc.getObject("XY_Plane"), [""])
sketch24.MapMode = "FlatFace"
sketch24.AttachmentOffset = App.Placement(V(0, 0, 45), App.Rotation())
add_polygon(sketch24, [(-4.325, 68.75), (-4.325, 29.75), (-0.675, 29.75), (-0.675, 68.75)])  # lines 0-3
sketch24.addConstraint(Sketcher.Constraint("Vertical", 0))
sketch24.addConstraint(Sketcher.Constraint("Horizontal", 1))
sketch24.addConstraint(Sketcher.Constraint("Vertical", 2))
sketch24.addConstraint(Sketcher.Constraint("Horizontal", 3))
sketch24.addConstraint(Sketcher.Constraint("DistanceY", 0, 2, 0, 1, Q("39 mm")))
sketch24.addConstraint(Sketcher.Constraint("DistanceX", 1, 1, 1, 2, Q("3.65 mm")))
sketch24.addConstraint(Sketcher.Constraint("DistanceY", -1, 1, 0, 2, Q("29.75 mm")))
sketch24.addConstraint(Sketcher.Constraint("DistanceX", 0, 2, -1, 1, Q("4.325 mm")))
pocket19 = body.newObject("PartDesign::Pocket", "Pocket018")
pocket19.Profile = sketch24
pocket19.Length = 15.5

# Sketch on XY plane
sketch25 = body.newObject("Sketcher::SketchObject", "Sketch024")
sketch25.AttachmentSupport = (doc.getObject("XY_Plane"), [""])
sketch25.MapMode = "FlatFace"
sketch25.AttachmentOffset = App.Placement(V(0, 0, 45), App.Rotation())
add_polygon(sketch25, [(-4.325, 29.75), (-4.325, 36.125), (-5.005, 36.125), (-5.005, 30.125), (-5, 29.75)])  # lines 0-4
sketch25.addConstraint(Sketcher.Constraint("Vertical", 0))
sketch25.addConstraint(Sketcher.Constraint("Horizontal", 1))
sketch25.addConstraint(Sketcher.Constraint("Vertical", 2))
sketch25.addConstraint(Sketcher.Constraint("Horizontal", 4))
sketch25.addConstraint(Sketcher.Constraint("DistanceY", 2, 2, 2, 1, Q("6 mm")))
sketch25.addConstraint(Sketcher.Constraint("DistanceX", 3, 2, -1, 1, Q("5 mm")))
sketch25.addConstraint(Sketcher.Constraint("DistanceX", 1, 2, 1, 1, Q("0.68 mm")))
sketch25.addConstraint(Sketcher.Constraint("DistanceX", 4, 1, 4, 2, Q("0.675 mm")))
sketch25.addConstraint(Sketcher.Constraint("DistanceY", 0, 1, 0, 2, Q("6.375 mm")))
sketch25.addConstraint(Sketcher.Constraint("DistanceY", -1, 1, 3, 2, Q("29.75 mm")))
pocket20 = body.newObject("PartDesign::Pocket", "Pocket019")
pocket20.Profile = sketch25
pocket20.Length = 15.5

# Sketch on XY plane
sketch26 = body.newObject("Sketcher::SketchObject", "Sketch025")
sketch26.AttachmentSupport = (doc.getObject("XY_Plane"), [""])
sketch26.MapMode = "FlatFace"
sketch26.AttachmentOffset = App.Placement(V(0, 0, 26.25), App.Rotation())
add_polygon(sketch26, [(-49.507753, 72.151529), (-52.007753, 72.151529), (-52.007753, 11.125683), (-49.507753, 11.125683), (-49.507753, 8.625683), (-11.507753, 8.625683), (-11.507753, 11.125683), (-9.007753, 11.125683), (-9.007753, 72.151529), (-11.507753, 72.151529), (-11.507753, 74.651529), (-49.507753, 74.651529)])  # lines 0-11
sketch26.addConstraint(Sketcher.Constraint("Horizontal", 0))
sketch26.addConstraint(Sketcher.Constraint("Vertical", 1))
sketch26.addConstraint(Sketcher.Constraint("Horizontal", 2))
sketch26.addConstraint(Sketcher.Constraint("Vertical", 3))
sketch26.addConstraint(Sketcher.Constraint("Horizontal", 4))
sketch26.addConstraint(Sketcher.Constraint("Vertical", 5))
sketch26.addConstraint(Sketcher.Constraint("Horizontal", 6))
sketch26.addConstraint(Sketcher.Constraint("Vertical", 7))
sketch26.addConstraint(Sketcher.Constraint("Horizontal", 8))
sketch26.addConstraint(Sketcher.Constraint("Vertical", 9))
sketch26.addConstraint(Sketcher.Constraint("Horizontal", 10))
sketch26.addConstraint(Sketcher.Constraint("Vertical", 11))
sketch26.addConstraint(Sketcher.Constraint("Horizontal", 2, 2, 5, 2))
sketch26.addConstraint(Sketcher.Constraint("Horizontal", 0, 2, 7, 2))
sketch26.addConstraint(Sketcher.Constraint("Vertical", 5, 2, 8, 2))
sketch26.addConstraint(Sketcher.Constraint("Vertical", 3, 2, 10, 2))
sketch26.addConstraint(Sketcher.Constraint("Equal", 2, 6))
sketch26.addConstraint(Sketcher.Constraint("Equal", 8, 3))
sketch26.addConstraint(Sketcher.Constraint("Equal", 5, 9))
sketch26.addConstraint(Sketcher.Constraint("DistanceX", 4, 1, 4, 2, Q("38 mm")))
sketch26.addConstraint(Sketcher.Constraint("DistanceX", 0, 2, 0, 1, Q("2.5 mm")))
sketch26.addConstraint(Sketcher.Constraint("DistanceY", 1, 2, 1, 1, Q("61.025846 mm")))
sketch26.addConstraint(Sketcher.Constraint("DistanceY", -1, 1, 0, 2, Q("72.151529 mm")))
sketch26.addConstraint(Sketcher.Constraint("DistanceX", 0, 2, -1, 1, Q("52.007753 mm")))
pocket21 = body.newObject("PartDesign::Pocket", "Pocket020")
pocket21.Profile = sketch26
pocket21.Length = 3.25

# Sketch on XY plane
sketch27 = body.newObject("Sketcher::SketchObject", "Sketch026")
sketch27.AttachmentSupport = (doc.getObject("XY_Plane"), [""])
sketch27.MapMode = "FlatFace"
sketch27.AttachmentOffset = App.Placement(V(0, 0, 7.5), App.Rotation())
add_polygon(sketch27, [(-35.25, 90.5), (-35.25, 88), (-42.25, 88), (-42.25, 90.5)])  # lines 0-3
sketch27.addConstraint(Sketcher.Constraint("Vertical", 0))
sketch27.addConstraint(Sketcher.Constraint("Horizontal", 1))
sketch27.addConstraint(Sketcher.Constraint("Vertical", 2))
sketch27.addConstraint(Sketcher.Constraint("Horizontal", 3))
sketch27.addConstraint(Sketcher.Constraint("DistanceX", 1, 2, 1, 1, Q("7 mm")))
sketch27.addConstraint(Sketcher.Constraint("DistanceY", 0, 2, 0, 1, Q("2.5 mm")))
sketch27.addConstraint(Sketcher.Constraint("DistanceY", -1, 1, 0, 2, Q("88 mm")))
sketch27.addConstraint(Sketcher.Constraint("DistanceX", 0, 2, -1, 1, Q("35.25 mm")))
pocket22 = body.newObject("PartDesign::Pocket", "Pocket021")
pocket22.Profile = sketch27
pocket22.Length = 3
pocket22.Reversed = True

# Sketch on XY plane
sketch28 = body.newObject("Sketcher::SketchObject", "Sketch027")
sketch28.AttachmentSupport = (doc.getObject("XY_Plane"), [""])
sketch28.MapMode = "FlatFace"
sketch28.AttachmentOffset = App.Placement(V(0, 0, 26.25), App.Rotation())
add_polygon(sketch28, [(-42.25, 88), (-42.25, 86), (-35.25, 86), (-35.25, 88)])  # lines 0-3
sketch28.addConstraint(Sketcher.Constraint("Vertical", 0))
sketch28.addConstraint(Sketcher.Constraint("Horizontal", 1))
sketch28.addConstraint(Sketcher.Constraint("Vertical", 2))
sketch28.addConstraint(Sketcher.Constraint("Horizontal", 3))
sketch28.addConstraint(Sketcher.Constraint("DistanceX", 1, 1, 1, 2, Q("7 mm")))
sketch28.addConstraint(Sketcher.Constraint("DistanceY", 0, 2, 0, 1, Q("2 mm")))
sketch28.addConstraint(Sketcher.Constraint("DistanceY", -1, 1, 0, 2, Q("86 mm")))
sketch28.addConstraint(Sketcher.Constraint("DistanceX", 0, 2, -1, 1, Q("42.25 mm")))
pocket23 = body.newObject("PartDesign::Pocket", "Pocket022")
pocket23.Profile = sketch28
pocket23.Length = 6

# Sketch on XY plane
sketch29 = body.newObject("Sketcher::SketchObject", "Sketch028")
sketch29.AttachmentSupport = (doc.getObject("XY_Plane"), [""])
sketch29.MapMode = "FlatFace"
add_polygon(sketch29, [(-45, 90), (-45, 79.5), (-48, 79.5), (-48, 90)])  # lines 0-3
add_polygon(sketch29, [(-45, 18.5), (-45, 8), (-48, 8), (-48, 18.5)])  # lines 4-7
sketch29.addConstraint(Sketcher.Constraint("Vertical", 0))
sketch29.addConstraint(Sketcher.Constraint("Horizontal", 1))
sketch29.addConstraint(Sketcher.Constraint("Vertical", 2))
sketch29.addConstraint(Sketcher.Constraint("Horizontal", 3))
sketch29.addConstraint(Sketcher.Constraint("Vertical", 4))
sketch29.addConstraint(Sketcher.Constraint("Horizontal", 5))
sketch29.addConstraint(Sketcher.Constraint("Vertical", 6))
sketch29.addConstraint(Sketcher.Constraint("Horizontal", 7))
sketch29.addConstraint(Sketcher.Constraint("Vertical", 3, 2, 4, 2))
sketch29.addConstraint(Sketcher.Constraint("Vertical", 2, 2, 5, 2))
sketch29.addConstraint(Sketcher.Constraint("Equal", 2, 4))
sketch29.addConstraint(Sketcher.Constraint("DistanceX", 1, 2, 1, 1, Q("3 mm")))
sketch29.addConstraint(Sketcher.Constraint("DistanceY", 0, 2, 0, 1, Q("10.5 mm")))
sketch29.addConstraint(Sketcher.Constraint("DistanceX", 0, 2, -1, 1, Q("45 mm")))
sketch29.addConstraint(Sketcher.Constraint("DistanceY", -1, 1, 2, 2, Q("90 mm")))
sketch29.addConstraint(Sketcher.Constraint("DistanceY", -1, 1, 4, 2, Q("8 mm")))
pocket24 = body.newObject("PartDesign::Pocket", "Pocket023")
pocket24.Profile = sketch29
pocket24.Length = 12
pocket24.Reversed = True

doc.recompute()
